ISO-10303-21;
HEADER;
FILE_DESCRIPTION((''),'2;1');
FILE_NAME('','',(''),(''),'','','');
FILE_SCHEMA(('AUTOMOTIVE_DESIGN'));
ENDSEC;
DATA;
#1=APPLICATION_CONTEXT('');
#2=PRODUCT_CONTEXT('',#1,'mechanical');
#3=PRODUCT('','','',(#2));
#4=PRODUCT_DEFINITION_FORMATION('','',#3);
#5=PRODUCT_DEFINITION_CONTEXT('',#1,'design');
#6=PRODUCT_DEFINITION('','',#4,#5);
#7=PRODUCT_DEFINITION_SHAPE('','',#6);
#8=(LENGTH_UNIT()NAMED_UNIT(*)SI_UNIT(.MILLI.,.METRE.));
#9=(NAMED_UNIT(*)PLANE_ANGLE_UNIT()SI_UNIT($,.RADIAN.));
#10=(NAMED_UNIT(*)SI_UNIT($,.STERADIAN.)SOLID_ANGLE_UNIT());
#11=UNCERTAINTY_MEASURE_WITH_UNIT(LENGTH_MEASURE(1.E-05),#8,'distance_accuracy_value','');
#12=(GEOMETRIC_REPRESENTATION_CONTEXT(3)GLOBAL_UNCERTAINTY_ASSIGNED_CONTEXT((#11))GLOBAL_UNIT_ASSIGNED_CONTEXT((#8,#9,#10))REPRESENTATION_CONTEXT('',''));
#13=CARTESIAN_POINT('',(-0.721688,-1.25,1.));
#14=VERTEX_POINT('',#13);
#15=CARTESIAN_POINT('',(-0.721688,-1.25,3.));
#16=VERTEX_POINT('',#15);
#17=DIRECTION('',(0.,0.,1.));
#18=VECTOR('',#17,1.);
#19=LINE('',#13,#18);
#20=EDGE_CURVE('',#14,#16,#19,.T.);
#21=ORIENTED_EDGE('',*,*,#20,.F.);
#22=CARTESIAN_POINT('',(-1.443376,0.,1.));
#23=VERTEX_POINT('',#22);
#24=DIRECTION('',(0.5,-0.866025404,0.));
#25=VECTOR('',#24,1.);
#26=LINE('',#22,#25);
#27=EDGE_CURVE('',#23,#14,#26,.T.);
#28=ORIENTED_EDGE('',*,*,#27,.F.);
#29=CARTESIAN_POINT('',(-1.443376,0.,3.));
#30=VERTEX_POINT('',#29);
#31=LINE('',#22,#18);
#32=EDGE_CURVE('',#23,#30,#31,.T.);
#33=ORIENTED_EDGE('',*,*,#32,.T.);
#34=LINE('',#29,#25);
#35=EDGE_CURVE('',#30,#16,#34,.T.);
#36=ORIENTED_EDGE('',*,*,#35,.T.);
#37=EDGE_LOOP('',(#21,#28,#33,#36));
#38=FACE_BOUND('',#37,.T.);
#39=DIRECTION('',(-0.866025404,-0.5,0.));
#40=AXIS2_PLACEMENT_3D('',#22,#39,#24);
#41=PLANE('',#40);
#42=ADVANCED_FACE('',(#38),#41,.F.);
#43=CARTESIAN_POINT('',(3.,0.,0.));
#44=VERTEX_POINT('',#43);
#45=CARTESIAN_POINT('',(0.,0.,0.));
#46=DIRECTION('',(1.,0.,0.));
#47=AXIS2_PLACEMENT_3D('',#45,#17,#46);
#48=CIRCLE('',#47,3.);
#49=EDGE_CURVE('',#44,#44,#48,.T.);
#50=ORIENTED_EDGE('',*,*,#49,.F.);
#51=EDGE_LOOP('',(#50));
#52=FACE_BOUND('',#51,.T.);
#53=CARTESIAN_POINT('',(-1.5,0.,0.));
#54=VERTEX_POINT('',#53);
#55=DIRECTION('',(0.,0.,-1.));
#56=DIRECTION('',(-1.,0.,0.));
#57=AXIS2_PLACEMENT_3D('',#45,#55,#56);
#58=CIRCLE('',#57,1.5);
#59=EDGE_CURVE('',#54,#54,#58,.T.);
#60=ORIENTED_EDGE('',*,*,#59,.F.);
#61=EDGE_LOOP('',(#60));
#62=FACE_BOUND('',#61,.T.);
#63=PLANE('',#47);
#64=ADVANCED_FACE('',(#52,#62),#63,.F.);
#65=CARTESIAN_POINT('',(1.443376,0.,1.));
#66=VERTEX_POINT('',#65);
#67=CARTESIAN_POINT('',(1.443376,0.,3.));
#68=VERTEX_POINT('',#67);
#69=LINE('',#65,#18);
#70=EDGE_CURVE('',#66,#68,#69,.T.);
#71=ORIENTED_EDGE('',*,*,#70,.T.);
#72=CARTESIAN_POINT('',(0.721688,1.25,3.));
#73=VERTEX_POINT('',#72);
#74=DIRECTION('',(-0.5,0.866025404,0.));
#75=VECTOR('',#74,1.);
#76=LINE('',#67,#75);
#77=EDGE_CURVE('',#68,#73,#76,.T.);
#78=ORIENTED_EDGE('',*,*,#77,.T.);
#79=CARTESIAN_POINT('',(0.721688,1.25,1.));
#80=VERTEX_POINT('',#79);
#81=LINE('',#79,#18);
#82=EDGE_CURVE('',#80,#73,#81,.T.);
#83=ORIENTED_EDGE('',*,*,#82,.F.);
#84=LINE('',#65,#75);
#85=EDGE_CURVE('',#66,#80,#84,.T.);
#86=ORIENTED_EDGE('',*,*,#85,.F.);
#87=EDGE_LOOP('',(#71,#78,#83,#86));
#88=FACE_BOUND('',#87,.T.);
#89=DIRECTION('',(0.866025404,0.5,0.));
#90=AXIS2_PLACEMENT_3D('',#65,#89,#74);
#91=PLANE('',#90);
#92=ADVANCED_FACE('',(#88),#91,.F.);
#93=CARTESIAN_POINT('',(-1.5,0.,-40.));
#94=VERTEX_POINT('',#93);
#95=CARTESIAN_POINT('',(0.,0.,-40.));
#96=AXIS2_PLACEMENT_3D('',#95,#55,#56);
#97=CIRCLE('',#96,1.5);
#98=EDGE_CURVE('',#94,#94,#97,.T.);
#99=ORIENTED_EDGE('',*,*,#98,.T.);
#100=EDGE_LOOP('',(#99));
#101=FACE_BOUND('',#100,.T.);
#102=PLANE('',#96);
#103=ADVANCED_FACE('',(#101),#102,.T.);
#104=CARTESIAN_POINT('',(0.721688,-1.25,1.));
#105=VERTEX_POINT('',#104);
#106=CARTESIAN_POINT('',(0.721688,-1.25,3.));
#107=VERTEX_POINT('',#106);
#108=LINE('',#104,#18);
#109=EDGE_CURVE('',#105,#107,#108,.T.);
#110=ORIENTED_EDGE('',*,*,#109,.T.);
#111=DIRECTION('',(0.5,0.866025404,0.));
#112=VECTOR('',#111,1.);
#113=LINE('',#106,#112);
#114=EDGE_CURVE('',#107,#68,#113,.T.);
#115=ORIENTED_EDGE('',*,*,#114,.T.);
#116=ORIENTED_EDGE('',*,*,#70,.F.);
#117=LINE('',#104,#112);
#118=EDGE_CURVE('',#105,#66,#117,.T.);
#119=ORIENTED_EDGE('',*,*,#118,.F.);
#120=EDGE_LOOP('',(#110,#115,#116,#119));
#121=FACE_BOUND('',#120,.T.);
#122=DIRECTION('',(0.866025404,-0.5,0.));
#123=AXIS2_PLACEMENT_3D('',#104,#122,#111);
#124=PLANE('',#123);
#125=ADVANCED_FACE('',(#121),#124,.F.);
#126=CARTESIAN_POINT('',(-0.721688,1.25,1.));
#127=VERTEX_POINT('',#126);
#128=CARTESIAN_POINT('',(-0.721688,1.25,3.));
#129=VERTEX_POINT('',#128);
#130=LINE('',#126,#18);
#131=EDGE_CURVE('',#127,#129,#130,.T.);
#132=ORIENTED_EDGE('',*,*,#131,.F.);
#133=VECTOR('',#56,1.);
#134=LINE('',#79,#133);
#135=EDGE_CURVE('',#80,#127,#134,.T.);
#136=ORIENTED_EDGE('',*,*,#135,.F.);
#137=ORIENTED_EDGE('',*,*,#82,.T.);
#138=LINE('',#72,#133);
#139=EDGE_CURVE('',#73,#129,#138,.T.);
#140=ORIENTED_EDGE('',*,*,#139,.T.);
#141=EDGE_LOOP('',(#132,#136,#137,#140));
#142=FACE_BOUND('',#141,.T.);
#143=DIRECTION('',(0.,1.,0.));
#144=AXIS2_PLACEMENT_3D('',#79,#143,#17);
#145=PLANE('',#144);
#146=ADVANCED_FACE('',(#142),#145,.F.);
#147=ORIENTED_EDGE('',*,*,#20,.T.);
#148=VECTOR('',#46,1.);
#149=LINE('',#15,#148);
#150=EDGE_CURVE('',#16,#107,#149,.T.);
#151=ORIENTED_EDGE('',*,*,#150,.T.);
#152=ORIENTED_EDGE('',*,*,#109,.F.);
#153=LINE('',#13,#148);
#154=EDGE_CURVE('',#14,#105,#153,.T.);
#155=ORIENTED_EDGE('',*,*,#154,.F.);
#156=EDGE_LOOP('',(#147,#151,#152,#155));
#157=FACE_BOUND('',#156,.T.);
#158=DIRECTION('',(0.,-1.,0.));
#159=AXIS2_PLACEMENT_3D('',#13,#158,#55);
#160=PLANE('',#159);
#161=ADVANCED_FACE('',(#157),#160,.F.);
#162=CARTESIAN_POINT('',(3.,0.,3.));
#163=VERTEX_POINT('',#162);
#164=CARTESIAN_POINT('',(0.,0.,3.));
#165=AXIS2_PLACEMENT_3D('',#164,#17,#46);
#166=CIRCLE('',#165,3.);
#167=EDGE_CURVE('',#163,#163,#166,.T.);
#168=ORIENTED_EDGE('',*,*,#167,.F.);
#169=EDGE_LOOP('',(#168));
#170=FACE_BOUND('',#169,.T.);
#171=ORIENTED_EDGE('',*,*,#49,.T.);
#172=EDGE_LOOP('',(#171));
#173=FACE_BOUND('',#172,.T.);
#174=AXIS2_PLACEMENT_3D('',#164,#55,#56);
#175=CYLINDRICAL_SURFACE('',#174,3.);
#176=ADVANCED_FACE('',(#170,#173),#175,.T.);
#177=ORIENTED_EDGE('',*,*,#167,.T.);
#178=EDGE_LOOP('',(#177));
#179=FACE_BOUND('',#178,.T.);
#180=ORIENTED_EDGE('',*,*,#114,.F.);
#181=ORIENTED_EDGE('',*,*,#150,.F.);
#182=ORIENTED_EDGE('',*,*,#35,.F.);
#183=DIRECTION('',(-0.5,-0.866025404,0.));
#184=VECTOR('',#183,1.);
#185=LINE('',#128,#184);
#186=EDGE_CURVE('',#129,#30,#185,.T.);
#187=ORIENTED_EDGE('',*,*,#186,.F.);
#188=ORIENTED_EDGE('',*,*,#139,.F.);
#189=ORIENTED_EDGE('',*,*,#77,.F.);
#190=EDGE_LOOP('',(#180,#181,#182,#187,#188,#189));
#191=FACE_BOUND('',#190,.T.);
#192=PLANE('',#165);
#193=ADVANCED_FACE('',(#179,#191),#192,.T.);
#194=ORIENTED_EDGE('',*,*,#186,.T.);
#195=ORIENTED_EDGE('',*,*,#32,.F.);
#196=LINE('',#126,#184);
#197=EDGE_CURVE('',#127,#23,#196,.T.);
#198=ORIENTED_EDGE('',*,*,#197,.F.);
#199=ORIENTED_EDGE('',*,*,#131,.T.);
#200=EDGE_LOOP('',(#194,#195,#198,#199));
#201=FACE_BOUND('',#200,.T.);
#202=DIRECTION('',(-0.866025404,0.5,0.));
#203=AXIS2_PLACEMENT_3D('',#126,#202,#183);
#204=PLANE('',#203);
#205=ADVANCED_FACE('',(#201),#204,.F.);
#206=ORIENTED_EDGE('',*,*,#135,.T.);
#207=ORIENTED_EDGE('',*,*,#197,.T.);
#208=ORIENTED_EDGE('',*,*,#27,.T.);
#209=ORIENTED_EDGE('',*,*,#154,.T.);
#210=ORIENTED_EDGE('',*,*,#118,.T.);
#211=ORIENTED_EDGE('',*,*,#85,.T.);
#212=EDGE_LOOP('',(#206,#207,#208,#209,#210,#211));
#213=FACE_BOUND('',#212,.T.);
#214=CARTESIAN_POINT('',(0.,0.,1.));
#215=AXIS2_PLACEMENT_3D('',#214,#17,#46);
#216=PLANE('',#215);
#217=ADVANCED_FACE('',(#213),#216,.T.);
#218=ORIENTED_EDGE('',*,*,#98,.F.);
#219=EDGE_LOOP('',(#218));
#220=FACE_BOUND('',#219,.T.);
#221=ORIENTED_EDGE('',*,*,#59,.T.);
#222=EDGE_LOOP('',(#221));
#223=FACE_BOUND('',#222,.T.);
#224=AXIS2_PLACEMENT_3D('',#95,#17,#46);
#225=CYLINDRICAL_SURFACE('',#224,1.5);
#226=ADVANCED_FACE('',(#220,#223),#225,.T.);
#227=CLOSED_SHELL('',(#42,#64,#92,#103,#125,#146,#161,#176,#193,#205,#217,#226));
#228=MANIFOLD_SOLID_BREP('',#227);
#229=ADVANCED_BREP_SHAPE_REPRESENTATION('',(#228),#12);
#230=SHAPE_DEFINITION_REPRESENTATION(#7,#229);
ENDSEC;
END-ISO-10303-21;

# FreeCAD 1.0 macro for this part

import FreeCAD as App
import Part
import Sketcher
Q = App.Units.Quantity

doc = App.newDocument("Part")
body = doc.addObject("PartDesign::Body", "Body")

# Sketch on XY plane
sketch1 = body.newObject("Sketcher::SketchObject", "Sketch")
sketch1.AttachmentSupport = (doc.getObject("XY_Plane"), [""])
sketch1.MapMode = "FlatFace"
sketch1.addGeometry(Part.Circle(App.Vector(0, 0, 0), App.Vector(0, 0, 1), 3), False)
sketch1.addConstraint([
    Sketcher.Constraint("Coincident", 0, 3, -1, 1),
    Sketcher.Constraint("Diameter", 0, Q("6 mm")),
])
pad1 = body.newObject("PartDesign::Pad", "Pad")
pad1.Profile = sketch1
pad1.Length = 3

# Sketch on XY plane
sketch2 = body.newObject("Sketcher::SketchObject", "Sketch001")
sketch2.AttachmentSupport = (doc.getObject("XY_Plane"), [""])
sketch2.MapMode = "FlatFace"
sketch2.AttachmentOffset = App.Placement(App.Vector(0, 0, 3), App.Rotation())
sketch2.addGeometry([
    Part.LineSegment(App.Vector(1.4, 0, 0), App.Vector(0.7, 1.2, 0)),  # 0
    Part.LineSegment(App.Vector(0.7, 1.2, 0), App.Vector(-0.7, 1.2, 0)),  # 1
    Part.LineSegment(App.Vector(-0.7, 1.2, 0), App.Vector(-1.4, 0, 0)),  # 2
    Part.LineSegment(App.Vector(-1.4, 0, 0), App.Vector(-0.7, -1.2, 0)),  # 3
    Part.LineSegment(App.Vector(-0.7, -1.2, 0), App.Vector(0.7, -1.2, 0)),  # 4
    Part.LineSegment(App.Vector(0.7, -1.2, 0), App.Vector(1.4, 0, 0)),  # 5
], False)
sketch2.addConstraint([
    Sketcher.Constraint("Coincident", 0, 2, 1, 1),
    Sketcher.Constraint("Coincident", 1, 2, 2, 1),
    Sketcher.Constraint("Coincident", 2, 2, 3, 1),
    Sketcher.Constraint("Coincident", 3, 2, 4, 1),
    Sketcher.Constraint("Coincident", 4, 2, 5, 1),
    Sketcher.Constraint("Coincident", 5, 2, 0, 1),
    Sketcher.Constraint("Horizontal", 1),
    Sketcher.Constraint("Horizontal", 4),
    Sketcher.Constraint("Symmetric", 0, 2, 3, 2, -1, 1),
    Sketcher.Constraint("Symmetric", 2, 2, 5, 2, -1, 1),
    Sketcher.Constraint("PointOnObject", 2, 2, -1),
    Sketcher.Constraint("Parallel", 2, 5),
    Sketcher.Constraint("Vertical", 1, 2, 3, 2),
    Sketcher.Constraint("Angle", 0, Q("120 deg")),
    Sketcher.Constraint("DistanceY", 3, 2, 1, 2, Q("2.5 mm")),
    Sketcher.Constraint("DistanceX", 1, 2, 1, 1, Q("1.443376 mm")),
])
pocket1 = body.newObject("PartDesign::Pocket", "Pocket")
pocket1.Profile = sketch2
pocket1.Length = 2

# Sketch on XY plane
sketch3 = body.newObject("Sketcher::SketchObject", "Sketch002")
sketch3.AttachmentSupport = (doc.getObject("XY_Plane"), [""])
sketch3.MapMode = "FlatFace"
sketch3.addGeometry(Part.Circle(App.Vector(0, 0, 0), App.Vector(0, 0, 1), 1.5), False)
sketch3.addConstraint([
    Sketcher.Constraint("Coincident", 0, 3, -1, 1),
    Sketcher.Constraint("Diameter", 0, Q("3 mm")),
])
pad2 = body.newObject("PartDesign::Pad", "Pad001")
pad2.Profile = sketch3
pad2.Length = 40
pad2.Reversed = True

doc.recompute()
